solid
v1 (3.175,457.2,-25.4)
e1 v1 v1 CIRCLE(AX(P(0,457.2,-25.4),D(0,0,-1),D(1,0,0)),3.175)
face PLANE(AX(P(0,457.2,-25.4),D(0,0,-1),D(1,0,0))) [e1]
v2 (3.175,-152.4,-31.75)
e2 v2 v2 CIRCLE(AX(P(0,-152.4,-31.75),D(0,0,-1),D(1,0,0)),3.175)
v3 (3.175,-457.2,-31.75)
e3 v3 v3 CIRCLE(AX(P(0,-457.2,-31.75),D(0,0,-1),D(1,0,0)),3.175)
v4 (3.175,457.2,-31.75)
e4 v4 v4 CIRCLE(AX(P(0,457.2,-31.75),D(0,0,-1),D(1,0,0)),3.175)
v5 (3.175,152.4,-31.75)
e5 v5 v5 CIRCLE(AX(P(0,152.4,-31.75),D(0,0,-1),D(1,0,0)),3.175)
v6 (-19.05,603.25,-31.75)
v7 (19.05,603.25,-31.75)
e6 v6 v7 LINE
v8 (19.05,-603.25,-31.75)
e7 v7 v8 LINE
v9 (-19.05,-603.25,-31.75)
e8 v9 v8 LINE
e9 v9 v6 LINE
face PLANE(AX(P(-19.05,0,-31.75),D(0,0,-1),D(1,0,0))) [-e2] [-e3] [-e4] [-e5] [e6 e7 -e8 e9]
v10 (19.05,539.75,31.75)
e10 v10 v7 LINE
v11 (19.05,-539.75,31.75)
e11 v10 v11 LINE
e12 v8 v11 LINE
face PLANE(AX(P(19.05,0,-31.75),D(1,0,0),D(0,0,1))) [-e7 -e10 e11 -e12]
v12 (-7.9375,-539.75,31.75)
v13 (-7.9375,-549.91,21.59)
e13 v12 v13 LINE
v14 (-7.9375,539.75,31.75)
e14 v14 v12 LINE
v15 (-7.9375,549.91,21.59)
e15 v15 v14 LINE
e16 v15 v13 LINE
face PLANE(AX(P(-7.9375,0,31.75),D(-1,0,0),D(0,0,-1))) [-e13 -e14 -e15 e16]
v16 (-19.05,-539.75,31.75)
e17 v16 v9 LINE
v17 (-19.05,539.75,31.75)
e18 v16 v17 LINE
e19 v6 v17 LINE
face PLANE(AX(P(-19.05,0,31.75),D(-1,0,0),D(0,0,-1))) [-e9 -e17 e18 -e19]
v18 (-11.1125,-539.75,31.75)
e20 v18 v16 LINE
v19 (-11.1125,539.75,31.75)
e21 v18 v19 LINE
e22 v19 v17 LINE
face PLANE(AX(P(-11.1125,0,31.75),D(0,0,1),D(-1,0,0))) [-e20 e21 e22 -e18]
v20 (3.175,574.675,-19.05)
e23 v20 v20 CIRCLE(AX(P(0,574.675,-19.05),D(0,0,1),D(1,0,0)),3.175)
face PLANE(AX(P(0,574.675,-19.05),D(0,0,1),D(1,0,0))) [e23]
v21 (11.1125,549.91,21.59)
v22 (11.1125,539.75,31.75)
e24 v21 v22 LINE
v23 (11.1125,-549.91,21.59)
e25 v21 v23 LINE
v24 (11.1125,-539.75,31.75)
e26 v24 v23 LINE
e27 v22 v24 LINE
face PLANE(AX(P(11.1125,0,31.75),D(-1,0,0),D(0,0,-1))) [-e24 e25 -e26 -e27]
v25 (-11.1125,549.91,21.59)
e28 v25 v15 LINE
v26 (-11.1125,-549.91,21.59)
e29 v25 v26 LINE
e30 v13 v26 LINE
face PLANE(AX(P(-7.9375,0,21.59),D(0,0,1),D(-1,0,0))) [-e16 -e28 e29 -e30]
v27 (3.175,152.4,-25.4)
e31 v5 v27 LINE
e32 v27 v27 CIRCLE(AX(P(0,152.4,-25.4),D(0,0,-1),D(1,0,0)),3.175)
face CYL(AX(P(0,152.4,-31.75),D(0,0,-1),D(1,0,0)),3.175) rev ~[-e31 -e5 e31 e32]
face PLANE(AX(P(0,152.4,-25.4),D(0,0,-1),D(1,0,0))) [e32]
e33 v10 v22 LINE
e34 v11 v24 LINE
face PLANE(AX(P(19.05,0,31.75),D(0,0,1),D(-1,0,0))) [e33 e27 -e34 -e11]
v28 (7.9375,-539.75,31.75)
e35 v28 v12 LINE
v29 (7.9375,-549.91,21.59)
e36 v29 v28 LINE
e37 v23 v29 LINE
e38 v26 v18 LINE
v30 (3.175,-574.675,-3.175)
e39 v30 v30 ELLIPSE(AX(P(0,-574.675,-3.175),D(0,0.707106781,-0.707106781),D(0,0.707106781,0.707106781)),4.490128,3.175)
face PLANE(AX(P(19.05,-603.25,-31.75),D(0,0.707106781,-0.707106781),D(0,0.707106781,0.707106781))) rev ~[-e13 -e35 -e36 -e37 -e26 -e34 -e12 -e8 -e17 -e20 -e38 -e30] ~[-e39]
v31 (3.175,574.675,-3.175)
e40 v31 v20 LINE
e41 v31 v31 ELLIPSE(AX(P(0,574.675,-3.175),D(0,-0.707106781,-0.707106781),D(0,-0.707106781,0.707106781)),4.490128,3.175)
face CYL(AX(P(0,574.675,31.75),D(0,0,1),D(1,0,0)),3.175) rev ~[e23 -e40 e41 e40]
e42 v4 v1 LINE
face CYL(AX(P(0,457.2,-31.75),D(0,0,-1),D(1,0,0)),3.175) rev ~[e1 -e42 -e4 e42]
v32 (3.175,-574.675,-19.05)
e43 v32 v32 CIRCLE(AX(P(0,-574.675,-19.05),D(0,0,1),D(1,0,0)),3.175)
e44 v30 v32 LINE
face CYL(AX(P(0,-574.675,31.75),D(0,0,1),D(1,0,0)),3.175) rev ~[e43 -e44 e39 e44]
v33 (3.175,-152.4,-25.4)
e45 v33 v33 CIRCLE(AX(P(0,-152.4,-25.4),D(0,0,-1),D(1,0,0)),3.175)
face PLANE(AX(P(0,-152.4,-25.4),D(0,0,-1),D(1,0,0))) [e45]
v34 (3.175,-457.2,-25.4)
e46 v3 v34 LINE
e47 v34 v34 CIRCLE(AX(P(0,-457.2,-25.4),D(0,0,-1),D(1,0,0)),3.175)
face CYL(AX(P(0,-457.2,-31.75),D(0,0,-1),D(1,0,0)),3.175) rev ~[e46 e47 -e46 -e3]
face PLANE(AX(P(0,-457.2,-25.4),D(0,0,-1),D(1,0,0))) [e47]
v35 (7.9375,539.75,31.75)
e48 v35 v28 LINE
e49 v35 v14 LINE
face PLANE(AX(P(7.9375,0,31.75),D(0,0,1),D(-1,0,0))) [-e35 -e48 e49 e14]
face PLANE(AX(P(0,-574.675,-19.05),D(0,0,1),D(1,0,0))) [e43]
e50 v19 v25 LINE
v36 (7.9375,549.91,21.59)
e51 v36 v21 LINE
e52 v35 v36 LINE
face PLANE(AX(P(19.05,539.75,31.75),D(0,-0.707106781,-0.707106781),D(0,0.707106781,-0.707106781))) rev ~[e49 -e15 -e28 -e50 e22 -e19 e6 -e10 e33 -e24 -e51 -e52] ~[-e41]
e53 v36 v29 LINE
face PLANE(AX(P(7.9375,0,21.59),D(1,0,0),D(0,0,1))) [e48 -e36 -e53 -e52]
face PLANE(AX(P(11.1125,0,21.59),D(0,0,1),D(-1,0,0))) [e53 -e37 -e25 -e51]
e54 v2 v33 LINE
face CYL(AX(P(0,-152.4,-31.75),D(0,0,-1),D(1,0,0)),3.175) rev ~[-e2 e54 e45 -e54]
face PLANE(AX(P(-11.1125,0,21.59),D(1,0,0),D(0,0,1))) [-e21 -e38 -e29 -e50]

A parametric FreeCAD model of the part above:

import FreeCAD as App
import Part
import Sketcher

V = App.Vector
Q = App.Units.Quantity


def add_polygon(sketch, points):
    """Adds a closed chain of lines whose ends are joined by coincident constraints."""
    first, n = sketch.GeometryCount, len(points)
    for a, b in zip(points, points[1:] + points[:1]):
        sketch.addGeometry(Part.LineSegment(App.Vector(*a, 0), App.Vector(*b, 0)), False)
    for i in range(n):
        sketch.addConstraint(Sketcher.Constraint("Coincident", first + i, 2, first + (i + 1) % n, 1))

doc = App.newDocument("Part")
body = doc.addObject("PartDesign::Body", "Body")

# Sketch on XZ plane
sketch1 = body.newObject("Sketcher::SketchObject", "Sketch")
sketch1.AttachmentSupport = (doc.getObject("XZ_Plane"), [""])
sketch1.MapMode = "FlatFace"
add_polygon(sketch1, [(-19.1, -31.8), (19.1, -31.8), (19.1, 31.8), (11.1, 31.8), (11.1, 21.6), (7.9, 21.6), (7.9, 31.8), (-7.9, 31.8), (-7.9, 21.6), (-11.1, 21.6), (-11.1, 31.8), (-19.1, 31.8)])  # lines 0-11
sketch1.addConstraint([
    Sketcher.Constraint("Horizontal", 0),
    Sketcher.Constraint("Vertical", 1),
    Sketcher.Constraint("Horizontal", 2),
    Sketcher.Constraint("Vertical", 3),
    Sketcher.Constraint("Horizontal", 4),
    Sketcher.Constraint("Vertical", 5),
    Sketcher.Constraint("Horizontal", 6),
    Sketcher.Constraint("Vertical", 7),
    Sketcher.Constraint("Horizontal", 8),
    Sketcher.Constraint("Vertical", 9),
    Sketcher.Constraint("Horizontal", 10),
    Sketcher.Constraint("Vertical", 11),
    Sketcher.Constraint("Symmetric", 0, 2, 10, 2, -1, 1),
    Sketcher.Constraint("Symmetric", 4, 2, 7, 2, -2),
    Sketcher.Constraint("Symmetric", 2, 2, 9, 2, -2),
    Sketcher.Constraint("Horizontal", 2, 2, 5, 2),
    Sketcher.Constraint("DistanceX", 0, 1, 0, 2, Q("1.5 in")),
    Sketcher.Constraint("DistanceY", 1, 1, 1, 2, Q("2.5 in")),
    Sketcher.Constraint("DistanceY", 3, 2, 3, 1, Q("0.4 in")),
    Sketcher.Constraint("DistanceX", 2, 2, 2, 1, Q("0.3125 in")),
    Sketcher.Constraint("DistanceX", 4, 2, 4, 1, Q("0.125 in")),
])
pad1 = body.newObject("PartDesign::Pad", "Pad")
pad1.Profile = sketch1
pad1.Length = Q("47.5 in")
pad1.Midplane = True

# Sketch on XY plane
sketch2 = body.newObject("Sketcher::SketchObject", "Sketch001")
sketch2.AttachmentSupport = (doc.getObject("XY_Plane"), [""])
sketch2.MapMode = "FlatFace"
sketch2.AttachmentOffset = App.Placement(V(0, 0, 1.25 * 25.4), App.Rotation())
sketch2.addGeometry([
    Part.Circle(V(0, 574.7, 0), V(0, 0, 1), 3.2),
    Part.Circle(V(0, -574.7, 0), V(0, 0, 1), 3.2),
], False)
sketch2.addConstraint([
    Sketcher.Constraint("Equal", 0, 1),
    Sketcher.Constraint("Symmetric", 0, 3, 1, 3, -1, 1),
    Sketcher.Constraint("PointOnObject", 0, 3, -2),
    Sketcher.Constraint("Diameter", 0, Q("0.25 in")),
    Sketcher.Constraint("DistanceY", 1, 3, 0, 3, Q("45.25 in")),
])
pocket1 = body.newObject("PartDesign::Pocket", "Pocket")
pocket1.Profile = sketch2
pocket1.Length = Q("2 in")

# Sketch on YZ plane
sketch3 = body.newObject("Sketcher::SketchObject", "Sketch002")
sketch3.AttachmentSupport = (doc.getObject("YZ_Plane"), [""])
sketch3.MapMode = "FlatFace"
sketch3.AttachmentOffset = App.Placement(V(0, 0, 0.75 * 25.4), App.Rotation())
add_polygon(sketch3, [(603, 32), (540, 32), (603, -32)])  # lines 0-2
add_polygon(sketch3, [(-603, 32), (-603, -32), (-540, 32)])  # lines 3-5
sketch3.addConstraint([
    Sketcher.Constraint("Horizontal", 0),
    Sketcher.Constraint("Vertical", 2),
    Sketcher.Constraint("Vertical", 3),
    Sketcher.Constraint("Horizontal", 5),
    Sketcher.Constraint("Symmetric", 2, 2, 3, 2, -1, 1),
    Sketcher.Constraint("Symmetric", 0, 2, 4, 2, -2),
    Sketcher.Constraint("Perpendicular", 1, 4),
    Sketcher.Constraint("Horizontal", 1, 2, 3, 2),
    Sketcher.Constraint("DistanceX", 0, 2, 0, 1, Q("2.5 in")),
    Sketcher.Constraint("DistanceX", 3, 2, 0, 2, Q("45 in")),
])
pocket2 = body.newObject("PartDesign::Pocket", "Pocket001")
pocket2.Profile = sketch3
pocket2.Length = Q("2 in")

# Sketch on XY plane
sketch4 = body.newObject("Sketcher::SketchObject", "Sketch003")
sketch4.AttachmentSupport = (doc.getObject("XY_Plane"), [""])
sketch4.MapMode = "FlatFace"
sketch4.AttachmentOffset = App.Placement(V(0, 0, -1.25 * 25.4), App.Rotation())
sketch4.addGeometry([
    Part.Circle(V(0, 457.2, 0), V(0, 0, 1), 3.2),
    Part.Circle(V(0, 152.4, 0), V(0, 0, 1), 3.2),
    Part.Circle(V(0, -152.4, 0), V(0, 0, 1), 3.2),
    Part.Circle(V(0, -457.2, 0), V(0, 0, 1), 3.2),
], False)
sketch4.addConstraint([
    Sketcher.Constraint("Equal", 0, 1),
    Sketcher.Constraint("Equal", 1, 2),
    Sketcher.Constraint("Equal", 2, 3),
    Sketcher.Constraint("Symmetric", 1, 3, 2, 3, -1, 1),
    Sketcher.Constraint("Symmetric", 0, 3, 3, 3, -1, 1),
    Sketcher.Constraint("PointOnObject", 0, 3, -2),
    Sketcher.Constraint("PointOnObject", 1, 3, -2),
    Sketcher.Constraint("Diameter", 0, Q("0.25 in")),
    Sketcher.Constraint("DistanceY", -1, 1, 0, 3, Q("18 in")),
    Sketcher.Constraint("DistanceY", -1, 1, 1, 3, Q("6 in")),
])
pocket3 = body.newObject("PartDesign::Pocket", "Pocket002")
pocket3.Profile = sketch4
pocket3.Length = Q("0.25 in")
pocket3.Reversed = True

doc.recompute()
